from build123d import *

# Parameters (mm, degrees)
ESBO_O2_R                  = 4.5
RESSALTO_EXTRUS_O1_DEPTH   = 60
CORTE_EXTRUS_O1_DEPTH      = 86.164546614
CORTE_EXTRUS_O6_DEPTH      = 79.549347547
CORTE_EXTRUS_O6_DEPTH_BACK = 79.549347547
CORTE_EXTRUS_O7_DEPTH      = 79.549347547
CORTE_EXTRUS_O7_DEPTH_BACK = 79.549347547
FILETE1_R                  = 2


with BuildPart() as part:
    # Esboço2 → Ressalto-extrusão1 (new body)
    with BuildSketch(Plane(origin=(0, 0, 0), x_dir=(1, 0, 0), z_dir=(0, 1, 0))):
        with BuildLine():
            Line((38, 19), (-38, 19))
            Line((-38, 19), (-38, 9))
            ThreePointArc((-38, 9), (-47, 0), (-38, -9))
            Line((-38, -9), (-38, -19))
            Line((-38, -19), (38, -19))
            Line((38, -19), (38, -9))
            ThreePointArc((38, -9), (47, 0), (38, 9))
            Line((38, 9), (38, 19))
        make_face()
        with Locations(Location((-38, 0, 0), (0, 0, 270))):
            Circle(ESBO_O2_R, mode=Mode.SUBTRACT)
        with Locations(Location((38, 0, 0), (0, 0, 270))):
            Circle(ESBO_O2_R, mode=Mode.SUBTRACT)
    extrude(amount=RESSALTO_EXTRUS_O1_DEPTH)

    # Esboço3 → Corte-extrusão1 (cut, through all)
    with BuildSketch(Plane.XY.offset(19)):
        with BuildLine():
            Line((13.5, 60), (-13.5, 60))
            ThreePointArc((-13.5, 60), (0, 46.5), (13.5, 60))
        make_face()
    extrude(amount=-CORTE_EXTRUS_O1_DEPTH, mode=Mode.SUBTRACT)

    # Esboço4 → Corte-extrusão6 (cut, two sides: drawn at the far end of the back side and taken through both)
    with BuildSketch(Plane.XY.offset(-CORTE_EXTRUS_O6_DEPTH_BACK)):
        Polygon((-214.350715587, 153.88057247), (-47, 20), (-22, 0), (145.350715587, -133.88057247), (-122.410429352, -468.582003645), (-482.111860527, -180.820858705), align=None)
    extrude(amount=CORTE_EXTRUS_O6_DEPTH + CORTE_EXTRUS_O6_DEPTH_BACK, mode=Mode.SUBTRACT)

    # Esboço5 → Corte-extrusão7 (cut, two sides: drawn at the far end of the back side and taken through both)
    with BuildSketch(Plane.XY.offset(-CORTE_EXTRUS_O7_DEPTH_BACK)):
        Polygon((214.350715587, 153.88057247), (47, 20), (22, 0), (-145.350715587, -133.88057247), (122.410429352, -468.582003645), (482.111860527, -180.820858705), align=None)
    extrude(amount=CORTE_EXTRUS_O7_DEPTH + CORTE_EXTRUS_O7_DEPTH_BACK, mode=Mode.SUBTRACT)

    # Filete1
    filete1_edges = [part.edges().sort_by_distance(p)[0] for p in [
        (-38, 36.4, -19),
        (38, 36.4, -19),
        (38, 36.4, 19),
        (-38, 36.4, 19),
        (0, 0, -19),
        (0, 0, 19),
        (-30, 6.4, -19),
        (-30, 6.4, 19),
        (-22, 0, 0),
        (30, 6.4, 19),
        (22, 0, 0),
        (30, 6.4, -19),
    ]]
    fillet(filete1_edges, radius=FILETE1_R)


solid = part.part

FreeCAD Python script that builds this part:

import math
import FreeCAD as App
import Part
import Sketcher

V = App.Vector
Q = App.Units.Quantity


def edges_at(feature, points):
    """Names of the edges that pass closest to the given points."""
    edges = feature.Shape.Edges
    near = lambda p: min(range(len(edges)), key=lambda i: edges[i].distToShape(Part.Vertex(*p))[0])
    return sorted({f"Edge{near(p) + 1}" for p in points})

doc = App.newDocument("Part")
body = doc.addObject("PartDesign::Body", "Body")

# Sketch on XZ plane
sketch1 = body.newObject("Sketcher::SketchObject", "Sketch")
sketch1.AttachmentSupport = (doc.getObject("XZ_Plane"), [""])
sketch1.MapMode = "FlatFace"
sketch1.addGeometry([
    Part.LineSegment(V(38, -19, 0), V(-38, -19, 0)),  # 0
    Part.LineSegment(V(-38, -19, 0), V(-38, -9, 0)),  # 1
    Part.ArcOfCircle(Part.Circle(V(-38, 0, 0), V(0, 0, 1), 9), math.radians(90), math.radians(270)),  # 2
    Part.LineSegment(V(-38, 9, 0), V(-38, 19, 0)),  # 3
    Part.LineSegment(V(-38, 19, 0), V(38, 19, 0)),  # 4
    Part.LineSegment(V(38, 19, 0), V(38, 9, 0)),  # 5
    Part.ArcOfCircle(Part.Circle(V(38, 0, 0), V(0, 0, 1), 9), math.radians(-90), math.radians(90)),  # 6
    Part.LineSegment(V(38, -9, 0), V(38, -19, 0)),  # 7
    Part.Circle(V(-38, 0, 0), V(0, 0, 1), 4.5),  # 8
    Part.Circle(V(38, 0, 0), V(0, 0, 1), 4.5),  # 9
], False)
sketch1.addConstraint([
    Sketcher.Constraint("Coincident", 0, 2, 1, 1),
    Sketcher.Constraint("Coincident", 1, 2, 2, 2),
    Sketcher.Constraint("Coincident", 2, 1, 3, 1),
    Sketcher.Constraint("Coincident", 3, 2, 4, 1),
    Sketcher.Constraint("Coincident", 4, 2, 5, 1),
    Sketcher.Constraint("Coincident", 5, 2, 6, 2),
    Sketcher.Constraint("Coincident", 6, 1, 7, 1),
    Sketcher.Constraint("Coincident", 7, 2, 0, 1),
    Sketcher.Constraint("Horizontal", 0),
    Sketcher.Constraint("Vertical", 1),
    Sketcher.Constraint("Vertical", 3),
    Sketcher.Constraint("Horizontal", 4),
    Sketcher.Constraint("Vertical", 5),
    Sketcher.Constraint("Vertical", 7),
    Sketcher.Constraint("Coincident", 8, 3, 2, 3),
    Sketcher.Constraint("Coincident", 9, 3, 6, 3),
    Sketcher.Constraint("Equal", 2, 6),
    Sketcher.Constraint("Equal", 8, 9),
    Sketcher.Constraint("Symmetric", 2, 3, 6, 3, -1, 1),
    Sketcher.Constraint("Symmetric", 0, 2, 4, 2, -1, 1),
    Sketcher.Constraint("Symmetric", 2, 1, 5, 2, -2),
    Sketcher.Constraint("Vertical", 8, 3, 0, 2),
    Sketcher.Constraint("Vertical", 5, 2, 6, 1),
    Sketcher.Constraint("Diameter", 8, Q("9 mm")),
    Sketcher.Constraint("Radius", 2, Q("9 mm")),
    Sketcher.Constraint("DistanceX", 0, 2, 0, 1, Q("76 mm")),
    Sketcher.Constraint("DistanceY", 1, 1, 1, 2, Q("10 mm")),
])
pad1 = body.newObject("PartDesign::Pad", "Pad")
pad1.Profile = sketch1
pad1.Length = 60
pad1.Reversed = True

# Sketch on XY plane
sketch2 = body.newObject("Sketcher::SketchObject", "Sketch001")
sketch2.AttachmentSupport = (doc.getObject("XY_Plane"), [""])
sketch2.MapMode = "FlatFace"
sketch2.AttachmentOffset = App.Placement(V(0, 0, 19), App.Rotation())
sketch2.addGeometry([
    Part.LineSegment(V(14, 60, 0), V(-14, 60, 0)),
    Part.ArcOfCircle(Part.Circle(V(0, 60, 0), V(0, 0, 1), 14), math.radians(180), math.radians(360)),
], False)
sketch2.addConstraint([
    Sketcher.Constraint("Coincident", 0, 1, 1, 2),
    Sketcher.Constraint("Coincident", 1, 1, 0, 2),
    Sketcher.Constraint("Horizontal", 0),
    Sketcher.Constraint("PointOnObject", 1, 3, -2),
    Sketcher.Constraint("Horizontal", 1, 3, 0, 1),
    Sketcher.Constraint("Radius", 1, Q("13.5 mm")),
    Sketcher.Constraint("DistanceY", -1, 1, 1, 3, Q("60 mm")),
])
pocket1 = body.newObject("PartDesign::Pocket", "Pocket")
pocket1.Profile = sketch2
pocket1.Type = "ThroughAll"

# Sketch on XY plane
sketch3 = body.newObject("Sketcher::SketchObject", "Sketch002")
sketch3.AttachmentSupport = (doc.getObject("XY_Plane"), [""])
sketch3.MapMode = "FlatFace"
sketch3.addGeometry([
    Part.LineSegment(V(-47, 20, 0), V(-214, 154, 0)),  # 0
    Part.LineSegment(V(-214, 154, 0), V(-482, -181, 0)),  # 1
    Part.LineSegment(V(-482, -181, 0), V(-122, -469, 0)),  # 2
    Part.LineSegment(V(-122, -469, 0), V(145, -134, 0)),  # 3
    Part.LineSegment(V(145, -134, 0), V(-22, 0, 0)),  # 4
    Part.LineSegment(V(-22, 0, 0), V(-47, 20, 0)),  # 5
], False)
sketch3.addConstraint([
    Sketcher.Constraint("Coincident", 0, 2, 1, 1),
    Sketcher.Constraint("Coincident", 1, 2, 2, 1),
    Sketcher.Constraint("Coincident", 2, 2, 3, 1),
    Sketcher.Constraint("Coincident", 3, 2, 4, 1),
    Sketcher.Constraint("Coincident", 4, 2, 5, 1),
    Sketcher.Constraint("Coincident", 5, 2, 0, 1),
    Sketcher.Constraint("PointOnObject", 4, 2, -1),
    Sketcher.Constraint("Perpendicular", 0, 1),
    Sketcher.Constraint("Perpendicular", 1, 2),
    Sketcher.Constraint("Perpendicular", 2, 3),
    Sketcher.Constraint("Perpendicular", 3, 4),
    Sketcher.Constraint("Parallel", 4, 5),
    Sketcher.Constraint("Equal", 0, 4),
    Sketcher.Constraint("DistanceX", 4, 2, -1, 1, Q("22 mm")),
    Sketcher.Constraint("DistanceX", 5, 2, -1, 1, Q("47 mm")),
    Sketcher.Constraint("DistanceY", -1, 1, 5, 2, Q("20 mm")),
    Sketcher.Constraint("Distance", 1, Q("428.626969 mm")),
    Sketcher.Constraint("Distance", 2, Q("460.64259 mm")),
])
pocket2 = body.newObject("PartDesign::Pocket", "Pocket001")
pocket2.Profile = sketch3
pocket2.Type = "ThroughAll"
pocket2.Midplane = True

# Sketch on XY plane
sketch4 = body.newObject("Sketcher::SketchObject", "Sketch003")
sketch4.AttachmentSupport = (doc.getObject("XY_Plane"), [""])
sketch4.MapMode = "FlatFace"
sketch4.addGeometry([
    Part.LineSegment(V(214, 154, 0), V(47, 20, 0)),  # 0
    Part.LineSegment(V(47, 20, 0), V(22, 0, 0)),  # 1
    Part.LineSegment(V(22, 0, 0), V(-145, -134, 0)),  # 2
    Part.LineSegment(V(-145, -134, 0), V(122, -469, 0)),  # 3
    Part.LineSegment(V(122, -469, 0), V(482, -181, 0)),  # 4
    Part.LineSegment(V(482, -181, 0), V(214, 154, 0)),  # 5
], False)
sketch4.addConstraint([
    Sketcher.Constraint("Coincident", 0, 2, 1, 1),
    Sketcher.Constraint("Coincident", 1, 2, 2, 1),
    Sketcher.Constraint("Coincident", 2, 2, 3, 1),
    Sketcher.Constraint("Coincident", 3, 2, 4, 1),
    Sketcher.Constraint("Coincident", 4, 2, 5, 1),
    Sketcher.Constraint("Coincident", 5, 2, 0, 1),
    Sketcher.Constraint("PointOnObject", 1, 2, -1),
    Sketcher.Constraint("Parallel", 0, 1),
    Sketcher.Constraint("Parallel", 1, 2),
    Sketcher.Constraint("Perpendicular", 2, 3),
    Sketcher.Constraint("Perpendicular", 3, 4),
    Sketcher.Constraint("Perpendicular", 4, 5),
    Sketcher.Constraint("Equal", 0, 2),
    Sketcher.Constraint("DistanceX", -1, 1, 0, 2, Q("47 mm")),
    Sketcher.Constraint("DistanceY", -1, 1, 0, 2, Q("20 mm")),
    Sketcher.Constraint("DistanceX", -1, 1, 1, 2, Q("22 mm")),
    Sketcher.Constraint("Distance", 3, Q("428.626969 mm")),
    Sketcher.Constraint("Distance", 4, Q("460.64259 mm")),
])
pocket3 = body.newObject("PartDesign::Pocket", "Pocket002")
pocket3.Profile = sketch4
pocket3.Type = "ThroughAll"
pocket3.Midplane = True
doc.recompute()

fillet = body.newObject("PartDesign::Fillet", "Fillet")
fillet.Base = (pocket3, edges_at(pocket3, [
    (-38, 36.4, -19),
    (38, 36.4, -19),
    (38, 36.4, 19),
    (-38, 36.4, 19),
    (0, 0, -19),
    (0, 0, 19),
    (-30, 6.4, -19),
    (-30, 6.4, 19),
    (-22, 0, 0),
    (30, 6.4, 19),
    (22, 0, 0),
    (30, 6.4, -19),
]))
fillet.Radius = 2

doc.recompute()
